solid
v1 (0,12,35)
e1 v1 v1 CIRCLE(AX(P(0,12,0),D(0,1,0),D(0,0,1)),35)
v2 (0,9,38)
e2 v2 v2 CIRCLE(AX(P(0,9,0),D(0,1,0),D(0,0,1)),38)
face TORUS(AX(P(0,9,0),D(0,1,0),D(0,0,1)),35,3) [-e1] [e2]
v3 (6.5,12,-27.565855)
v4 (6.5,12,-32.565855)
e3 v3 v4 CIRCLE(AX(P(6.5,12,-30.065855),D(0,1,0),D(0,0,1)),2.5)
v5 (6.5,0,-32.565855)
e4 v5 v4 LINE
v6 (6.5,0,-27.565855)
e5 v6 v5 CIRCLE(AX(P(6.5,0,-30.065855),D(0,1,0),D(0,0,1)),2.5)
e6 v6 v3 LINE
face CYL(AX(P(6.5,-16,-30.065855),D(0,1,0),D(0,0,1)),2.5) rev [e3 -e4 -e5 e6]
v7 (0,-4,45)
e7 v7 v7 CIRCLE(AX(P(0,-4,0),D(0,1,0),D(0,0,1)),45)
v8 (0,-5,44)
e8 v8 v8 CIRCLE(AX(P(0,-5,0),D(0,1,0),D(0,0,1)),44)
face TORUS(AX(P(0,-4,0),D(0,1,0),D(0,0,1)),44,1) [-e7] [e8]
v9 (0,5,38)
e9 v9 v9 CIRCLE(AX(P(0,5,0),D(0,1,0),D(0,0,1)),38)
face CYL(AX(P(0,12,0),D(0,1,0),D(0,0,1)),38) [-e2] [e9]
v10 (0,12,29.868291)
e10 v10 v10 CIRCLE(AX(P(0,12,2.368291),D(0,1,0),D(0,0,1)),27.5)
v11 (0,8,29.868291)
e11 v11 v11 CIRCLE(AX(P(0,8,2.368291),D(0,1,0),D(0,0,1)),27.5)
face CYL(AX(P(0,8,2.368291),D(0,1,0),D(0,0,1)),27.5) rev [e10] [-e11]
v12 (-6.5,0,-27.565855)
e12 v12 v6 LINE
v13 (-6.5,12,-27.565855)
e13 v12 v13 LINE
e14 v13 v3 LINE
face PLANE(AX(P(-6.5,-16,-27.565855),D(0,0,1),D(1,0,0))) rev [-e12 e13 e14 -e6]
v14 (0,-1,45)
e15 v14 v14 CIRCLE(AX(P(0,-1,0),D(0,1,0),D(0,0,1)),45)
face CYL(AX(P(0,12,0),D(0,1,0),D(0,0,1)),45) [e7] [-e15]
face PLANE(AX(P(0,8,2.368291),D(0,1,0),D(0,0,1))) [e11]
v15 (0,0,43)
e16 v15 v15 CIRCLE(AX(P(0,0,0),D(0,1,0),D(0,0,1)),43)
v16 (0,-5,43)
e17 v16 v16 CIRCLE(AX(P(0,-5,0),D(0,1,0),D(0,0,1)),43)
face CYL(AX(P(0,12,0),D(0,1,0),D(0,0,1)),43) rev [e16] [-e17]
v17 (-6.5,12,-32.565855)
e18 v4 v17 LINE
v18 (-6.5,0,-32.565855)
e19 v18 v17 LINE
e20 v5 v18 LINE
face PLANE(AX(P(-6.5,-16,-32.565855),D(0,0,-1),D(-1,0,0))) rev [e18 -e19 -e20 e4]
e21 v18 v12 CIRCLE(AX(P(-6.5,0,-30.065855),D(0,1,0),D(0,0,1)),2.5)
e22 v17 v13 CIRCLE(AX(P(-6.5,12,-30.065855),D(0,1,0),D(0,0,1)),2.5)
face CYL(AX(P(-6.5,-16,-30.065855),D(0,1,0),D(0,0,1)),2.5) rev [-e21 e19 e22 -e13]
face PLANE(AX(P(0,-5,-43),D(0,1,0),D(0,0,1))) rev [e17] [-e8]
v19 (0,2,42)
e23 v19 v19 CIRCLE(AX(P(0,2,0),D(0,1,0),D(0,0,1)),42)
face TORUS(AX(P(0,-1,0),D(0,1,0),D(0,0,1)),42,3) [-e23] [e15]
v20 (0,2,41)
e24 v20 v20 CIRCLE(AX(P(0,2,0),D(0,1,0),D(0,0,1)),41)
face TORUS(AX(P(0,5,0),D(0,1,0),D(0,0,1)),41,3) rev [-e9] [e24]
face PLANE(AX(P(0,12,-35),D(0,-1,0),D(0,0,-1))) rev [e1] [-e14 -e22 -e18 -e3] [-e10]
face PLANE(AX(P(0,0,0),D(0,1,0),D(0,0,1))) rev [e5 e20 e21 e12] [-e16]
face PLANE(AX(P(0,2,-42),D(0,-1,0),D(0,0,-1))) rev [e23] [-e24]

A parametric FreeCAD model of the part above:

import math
import FreeCAD as App
import Part
import Sketcher

doc = App.newDocument("Part")
body = doc.addObject("PartDesign::Body", "Body")

# Sketch on YZ plane
sketch1 = body.newObject("Sketcher::SketchObject", "Sketch")
sketch1.AttachmentSupport = (doc.getObject("YZ_Plane"), [""])
sketch1.MapMode = "FlatFace"
sketch1.addGeometry([
    Part.LineSegment(App.Vector(0, 0, 0), App.Vector(0, -43, 0)),  # 0
    Part.LineSegment(App.Vector(0, -43, 0), App.Vector(-5, -43, 0)),  # 1
    Part.LineSegment(App.Vector(-5, -43, 0), App.Vector(-5, -44, 0)),  # 2
    Part.ArcOfCircle(Part.Circle(App.Vector(-4, -44, 0), App.Vector(0, 0, 1), 1), math.radians(-180), math.radians(-90)),  # 3
    Part.LineSegment(App.Vector(-4, -45, 0), App.Vector(-1, -45, 0)),  # 4
    Part.ArcOfCircle(Part.Circle(App.Vector(-1, -42, 0), App.Vector(0, 0, 1), 3), math.radians(-90), math.radians(0)),  # 5
    Part.LineSegment(App.Vector(2, -42, 0), App.Vector(2, -41, 0)),  # 6
    Part.ArcOfCircle(Part.Circle(App.Vector(5, -41, 0), App.Vector(0, 0, 1), 3), math.radians(90), math.radians(180)),  # 7
    Part.LineSegment(App.Vector(5, -38, 0), App.Vector(9, -38, 0)),  # 8
    Part.ArcOfCircle(Part.Circle(App.Vector(9, -35, 0), App.Vector(0, 0, 1), 3), math.radians(-90), math.radians(0)),  # 9
    Part.LineSegment(App.Vector(12, -35, 0), App.Vector(12, 0, 0)),  # 10
    Part.LineSegment(App.Vector(12, 0, 0), App.Vector(0, 0, 0)),  # 11
], False)
sketch1.addConstraint([
    Sketcher.Constraint("Coincident", 0, 2, 1, 1),
    Sketcher.Constraint("Coincident", 1, 2, 2, 1),
    Sketcher.Constraint("Tangent", 2, 2, 3, 1),
    Sketcher.Constraint("Tangent", 3, 2, 4, 1),
    Sketcher.Constraint("Tangent", 4, 2, 5, 1),
    Sketcher.Constraint("Tangent", 5, 2, 6, 1),
    Sketcher.Constraint("Tangent", 6, 2, 7, 2),
    Sketcher.Constraint("Tangent", 7, 1, 8, 1),
    Sketcher.Constraint("Tangent", 8, 2, 9, 1),
    Sketcher.Constraint("Tangent", 9, 2, 10, 1),
    Sketcher.Constraint("Coincident", 10, 2, 11, 1),
    Sketcher.Constraint("Coincident", 11, 2, 0, 1),
    Sketcher.Constraint("Vertical", 0),
    Sketcher.Constraint("Horizontal", 1),
    Sketcher.Constraint("Vertical", 2),
    Sketcher.Constraint("Horizontal", 4),
    Sketcher.Constraint("Vertical", 6),
    Sketcher.Constraint("Horizontal", 8),
    Sketcher.Constraint("Vertical", 10),
    Sketcher.Constraint("Horizontal", 11),
    Sketcher.Constraint("Coincident", 11, 2, -1, 1),
    Sketcher.Constraint("Equal", 5, 7),
    Sketcher.Constraint("Equal", 7, 9),
    Sketcher.Constraint("Equal", 2, 6),
    Sketcher.Constraint("Radius", 3, 1.0),
    Sketcher.Constraint("Radius", 5, 3.0),
    Sketcher.Constraint("DistanceX", 1, 2, 1, 1, 5.0),
    Sketcher.Constraint("DistanceX", 4, 1, 4, 2, 3.0),
    Sketcher.Constraint("DistanceX", 8, 1, 8, 2, 4.0),
    Sketcher.Constraint("DistanceY", 0, 2, 0, 1, 43.0),
    Sketcher.Constraint("DistanceY", 2, 2, 2, 1, 1.0),
])
revolution = body.newObject("PartDesign::Revolution", "Revolution")
revolution.Profile = sketch1
revolution.ReferenceAxis = (sketch1, ["H_Axis"])
revolution.Angle = 360

# Sketch on XZ plane
sketch2 = body.newObject("Sketcher::SketchObject", "Sketch001")
sketch2.AttachmentSupport = (doc.getObject("XZ_Plane"), [""])
sketch2.MapMode = "FlatFace"
sketch2.AttachmentOffset = App.Placement(App.Vector(0, 0, -12), App.Rotation())
sketch2.addGeometry(Part.Circle(App.Vector(0, 2, 0), App.Vector(0, 0, 1), 28), False)
sketch2.addConstraint([
    Sketcher.Constraint("PointOnObject", 0, 3, -2),
    Sketcher.Constraint("Diameter", 0, 55.0),
    Sketcher.Constraint("DistanceY", -1, 1, 0, 3, 2.368291),
])
pocket1 = body.newObject("PartDesign::Pocket", "Pocket")
pocket1.Profile = sketch2
pocket1.Length = 4
pocket1.Reversed = True

# Sketch on XZ plane
sketch3 = body.newObject("Sketcher::SketchObject", "Sketch002")
sketch3.AttachmentSupport = (doc.getObject("XZ_Plane"), [""])
sketch3.MapMode = "FlatFace"
sketch3.AttachmentOffset = App.Placement(App.Vector(0, 0, -12), App.Rotation())
sketch3.addGeometry([
    Part.LineSegment(App.Vector(6.5, -32.6, 0), App.Vector(-6.5, -32.6, 0)),
    Part.ArcOfCircle(Part.Circle(App.Vector(-6.5, -30.1, 0), App.Vector(0, 0, 1), 2.5), math.radians(90), math.radians(270)),
    Part.LineSegment(App.Vector(-6.5, -27.6, 0), App.Vector(6.5, -27.6, 0)),
    Part.ArcOfCircle(Part.Circle(App.Vector(6.5, -30.1, 0), App.Vector(0, 0, 1), 2.5), math.radians(-90), math.radians(90)),
], False)
sketch3.addConstraint([
    Sketcher.Constraint("Tangent", 0, 2, 1, 2),
    Sketcher.Constraint("Tangent", 1, 1, 2, 1),
    Sketcher.Constraint("Tangent", 2, 2, 3, 2),
    Sketcher.Constraint("Tangent", 3, 1, 0, 1),
    Sketcher.Constraint("Horizontal", 0),
    Sketcher.Constraint("Horizontal", 2),
    Sketcher.Constraint("Radius", 1, 2.5),
    Sketcher.Constraint("DistanceX", 0, 2, 0, 1, 13.0),
    Sketcher.Constraint("DistanceX", 1, 3, -1, 1, 6.5),
    Sketcher.Constraint("DistanceY", 1, 3, -1, 1, 30.065855),
])
pocket2 = body.newObject("PartDesign::Pocket", "Pocket001")
pocket2.Profile = sketch3
pocket2.Length = 28
pocket2.Reversed = True

doc.recompute()
